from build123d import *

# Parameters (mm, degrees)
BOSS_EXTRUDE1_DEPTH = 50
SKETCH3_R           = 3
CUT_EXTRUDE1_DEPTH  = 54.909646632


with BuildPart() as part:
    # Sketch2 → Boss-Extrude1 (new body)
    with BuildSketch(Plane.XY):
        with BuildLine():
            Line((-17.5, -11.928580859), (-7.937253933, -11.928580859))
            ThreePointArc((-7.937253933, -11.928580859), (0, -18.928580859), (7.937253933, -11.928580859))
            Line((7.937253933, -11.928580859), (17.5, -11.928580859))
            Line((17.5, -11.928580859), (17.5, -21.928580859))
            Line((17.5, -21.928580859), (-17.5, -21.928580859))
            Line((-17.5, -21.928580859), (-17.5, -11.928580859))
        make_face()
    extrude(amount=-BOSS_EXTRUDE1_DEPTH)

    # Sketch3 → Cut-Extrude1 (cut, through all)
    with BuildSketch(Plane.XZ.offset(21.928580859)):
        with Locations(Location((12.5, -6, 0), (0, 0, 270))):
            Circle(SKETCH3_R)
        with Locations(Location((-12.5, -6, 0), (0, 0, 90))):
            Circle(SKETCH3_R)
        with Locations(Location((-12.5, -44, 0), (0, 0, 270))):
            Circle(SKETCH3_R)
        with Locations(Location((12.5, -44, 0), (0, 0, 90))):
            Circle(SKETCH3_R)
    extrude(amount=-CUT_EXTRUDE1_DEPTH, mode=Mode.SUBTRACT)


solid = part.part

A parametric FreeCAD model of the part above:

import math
import FreeCAD as App
import Part
import Sketcher

doc = App.newDocument("Part")
params = doc.addObject("Spreadsheet::Sheet", "Params")
for row, (alias, value) in enumerate([
    ("sketch1_radius", "8 mm"),
    ("sketch1_width", "35 mm"),
    ("sketch1_height", "10 mm"),
    ("pad1_length", "50 mm"),
    ("sketch2_diameter", "6 mm"),
], start=1):
    params.set(f"A{row}", alias)
    params.set(f"B{row}", "=" + value)
    params.setAlias(f"B{row}", alias)

body = doc.addObject("PartDesign::Body", "Body")

# Sketch on XY plane
sketch1 = body.newObject("Sketcher::SketchObject", "Sketch")
sketch1.AttachmentSupport = (doc.getObject("XY_Plane"), [""])
sketch1.MapMode = "FlatFace"
sketch1.addGeometry([
    Part.LineSegment(App.Vector(-8, -12, 0), App.Vector(-18, -12, 0)),  # 0
    Part.LineSegment(App.Vector(-18, -12, 0), App.Vector(-18, -22, 0)),  # 1
    Part.LineSegment(App.Vector(-18, -22, 0), App.Vector(18, -22, 0)),  # 2
    Part.LineSegment(App.Vector(18, -22, 0), App.Vector(18, -12, 0)),  # 3
    Part.LineSegment(App.Vector(18, -12, 0), App.Vector(8, -12, 0)),  # 4
    Part.ArcOfCircle(Part.Circle(App.Vector(0, -11, 0), App.Vector(0, 0, 1), 8), math.radians(-173), math.radians(-7)),  # 5
], False)
sketch1.addConstraint([
    Sketcher.Constraint("Coincident", 0, 2, 1, 1),
    Sketcher.Constraint("Coincident", 1, 2, 2, 1),
    Sketcher.Constraint("Coincident", 2, 2, 3, 1),
    Sketcher.Constraint("Coincident", 3, 2, 4, 1),
    Sketcher.Constraint("Coincident", 4, 2, 5, 2),
    Sketcher.Constraint("Coincident", 5, 1, 0, 1),
    Sketcher.Constraint("Horizontal", 0),
    Sketcher.Constraint("Vertical", 1),
    Sketcher.Constraint("Horizontal", 2),
    Sketcher.Constraint("Vertical", 3),
    Sketcher.Constraint("Horizontal", 4),
    Sketcher.Constraint("Symmetric", 0, 2, 3, 2, -2),
    Sketcher.Constraint("PointOnObject", 5, 3, -2),
    Sketcher.Constraint("Radius", 5, 8.0),
    Sketcher.Constraint("DistanceX", 2, 1, 2, 2, 35.0),
    Sketcher.Constraint("DistanceY", 1, 2, 1, 1, 10.0),
    Sketcher.Constraint("DistanceY", 0, 2, 5, 3, 1.0),
    Sketcher.Constraint("DistanceY", 5, 3, -1, 1, 10.928581),
])
sketch1.setExpression("Constraints[13]", "Params.sketch1_radius")
sketch1.setExpression("Constraints[14]", "Params.sketch1_width")
sketch1.setExpression("Constraints[15]", "Params.sketch1_height")
pad1 = body.newObject("PartDesign::Pad", "Pad")
pad1.Profile = sketch1
pad1.setExpression("Length", "Params.pad1_length")
pad1.Reversed = True

# Sketch on XZ plane
sketch2 = body.newObject("Sketcher::SketchObject", "Sketch001")
sketch2.AttachmentSupport = (doc.getObject("XZ_Plane"), [""])
sketch2.MapMode = "FlatFace"
sketch2.AttachmentOffset = App.Placement(App.Vector(0, 0, 21.928581), App.Rotation())
sketch2.addGeometry([
    Part.Circle(App.Vector(12.5, -6, 0), App.Vector(0, 0, 1), 3),
    Part.Circle(App.Vector(-12.5, -6, 0), App.Vector(0, 0, 1), 3),
    Part.Circle(App.Vector(-12.5, -44, 0), App.Vector(0, 0, 1), 3),
    Part.Circle(App.Vector(12.5, -44, 0), App.Vector(0, 0, 1), 3),
], False)
sketch2.addConstraint([
    Sketcher.Constraint("Equal", 0, 1),
    Sketcher.Constraint("Equal", 1, 2),
    Sketcher.Constraint("Equal", 2, 3),
    Sketcher.Constraint("Symmetric", 0, 3, 1, 3, -2),
    Sketcher.Constraint("Symmetric", 2, 3, 3, 3, -2),
    Sketcher.Constraint("Vertical", 1, 3, 2, 3),
    Sketcher.Constraint("Diameter", 0, 6.0),
    Sketcher.Constraint("DistanceY", 0, 3, -1, 1, 6.0),
    Sketcher.Constraint("DistanceY", 2, 3, -1, 1, 44.0),
    Sketcher.Constraint("DistanceX", 1, 3, 0, 3, 25.0),
])
sketch2.setExpression("Constraints[6]", "Params.sketch2_diameter")
pocket1 = body.newObject("PartDesign::Pocket", "Pocket")
pocket1.Profile = sketch2
pocket1.Type = "ThroughAll"

doc.recompute()
